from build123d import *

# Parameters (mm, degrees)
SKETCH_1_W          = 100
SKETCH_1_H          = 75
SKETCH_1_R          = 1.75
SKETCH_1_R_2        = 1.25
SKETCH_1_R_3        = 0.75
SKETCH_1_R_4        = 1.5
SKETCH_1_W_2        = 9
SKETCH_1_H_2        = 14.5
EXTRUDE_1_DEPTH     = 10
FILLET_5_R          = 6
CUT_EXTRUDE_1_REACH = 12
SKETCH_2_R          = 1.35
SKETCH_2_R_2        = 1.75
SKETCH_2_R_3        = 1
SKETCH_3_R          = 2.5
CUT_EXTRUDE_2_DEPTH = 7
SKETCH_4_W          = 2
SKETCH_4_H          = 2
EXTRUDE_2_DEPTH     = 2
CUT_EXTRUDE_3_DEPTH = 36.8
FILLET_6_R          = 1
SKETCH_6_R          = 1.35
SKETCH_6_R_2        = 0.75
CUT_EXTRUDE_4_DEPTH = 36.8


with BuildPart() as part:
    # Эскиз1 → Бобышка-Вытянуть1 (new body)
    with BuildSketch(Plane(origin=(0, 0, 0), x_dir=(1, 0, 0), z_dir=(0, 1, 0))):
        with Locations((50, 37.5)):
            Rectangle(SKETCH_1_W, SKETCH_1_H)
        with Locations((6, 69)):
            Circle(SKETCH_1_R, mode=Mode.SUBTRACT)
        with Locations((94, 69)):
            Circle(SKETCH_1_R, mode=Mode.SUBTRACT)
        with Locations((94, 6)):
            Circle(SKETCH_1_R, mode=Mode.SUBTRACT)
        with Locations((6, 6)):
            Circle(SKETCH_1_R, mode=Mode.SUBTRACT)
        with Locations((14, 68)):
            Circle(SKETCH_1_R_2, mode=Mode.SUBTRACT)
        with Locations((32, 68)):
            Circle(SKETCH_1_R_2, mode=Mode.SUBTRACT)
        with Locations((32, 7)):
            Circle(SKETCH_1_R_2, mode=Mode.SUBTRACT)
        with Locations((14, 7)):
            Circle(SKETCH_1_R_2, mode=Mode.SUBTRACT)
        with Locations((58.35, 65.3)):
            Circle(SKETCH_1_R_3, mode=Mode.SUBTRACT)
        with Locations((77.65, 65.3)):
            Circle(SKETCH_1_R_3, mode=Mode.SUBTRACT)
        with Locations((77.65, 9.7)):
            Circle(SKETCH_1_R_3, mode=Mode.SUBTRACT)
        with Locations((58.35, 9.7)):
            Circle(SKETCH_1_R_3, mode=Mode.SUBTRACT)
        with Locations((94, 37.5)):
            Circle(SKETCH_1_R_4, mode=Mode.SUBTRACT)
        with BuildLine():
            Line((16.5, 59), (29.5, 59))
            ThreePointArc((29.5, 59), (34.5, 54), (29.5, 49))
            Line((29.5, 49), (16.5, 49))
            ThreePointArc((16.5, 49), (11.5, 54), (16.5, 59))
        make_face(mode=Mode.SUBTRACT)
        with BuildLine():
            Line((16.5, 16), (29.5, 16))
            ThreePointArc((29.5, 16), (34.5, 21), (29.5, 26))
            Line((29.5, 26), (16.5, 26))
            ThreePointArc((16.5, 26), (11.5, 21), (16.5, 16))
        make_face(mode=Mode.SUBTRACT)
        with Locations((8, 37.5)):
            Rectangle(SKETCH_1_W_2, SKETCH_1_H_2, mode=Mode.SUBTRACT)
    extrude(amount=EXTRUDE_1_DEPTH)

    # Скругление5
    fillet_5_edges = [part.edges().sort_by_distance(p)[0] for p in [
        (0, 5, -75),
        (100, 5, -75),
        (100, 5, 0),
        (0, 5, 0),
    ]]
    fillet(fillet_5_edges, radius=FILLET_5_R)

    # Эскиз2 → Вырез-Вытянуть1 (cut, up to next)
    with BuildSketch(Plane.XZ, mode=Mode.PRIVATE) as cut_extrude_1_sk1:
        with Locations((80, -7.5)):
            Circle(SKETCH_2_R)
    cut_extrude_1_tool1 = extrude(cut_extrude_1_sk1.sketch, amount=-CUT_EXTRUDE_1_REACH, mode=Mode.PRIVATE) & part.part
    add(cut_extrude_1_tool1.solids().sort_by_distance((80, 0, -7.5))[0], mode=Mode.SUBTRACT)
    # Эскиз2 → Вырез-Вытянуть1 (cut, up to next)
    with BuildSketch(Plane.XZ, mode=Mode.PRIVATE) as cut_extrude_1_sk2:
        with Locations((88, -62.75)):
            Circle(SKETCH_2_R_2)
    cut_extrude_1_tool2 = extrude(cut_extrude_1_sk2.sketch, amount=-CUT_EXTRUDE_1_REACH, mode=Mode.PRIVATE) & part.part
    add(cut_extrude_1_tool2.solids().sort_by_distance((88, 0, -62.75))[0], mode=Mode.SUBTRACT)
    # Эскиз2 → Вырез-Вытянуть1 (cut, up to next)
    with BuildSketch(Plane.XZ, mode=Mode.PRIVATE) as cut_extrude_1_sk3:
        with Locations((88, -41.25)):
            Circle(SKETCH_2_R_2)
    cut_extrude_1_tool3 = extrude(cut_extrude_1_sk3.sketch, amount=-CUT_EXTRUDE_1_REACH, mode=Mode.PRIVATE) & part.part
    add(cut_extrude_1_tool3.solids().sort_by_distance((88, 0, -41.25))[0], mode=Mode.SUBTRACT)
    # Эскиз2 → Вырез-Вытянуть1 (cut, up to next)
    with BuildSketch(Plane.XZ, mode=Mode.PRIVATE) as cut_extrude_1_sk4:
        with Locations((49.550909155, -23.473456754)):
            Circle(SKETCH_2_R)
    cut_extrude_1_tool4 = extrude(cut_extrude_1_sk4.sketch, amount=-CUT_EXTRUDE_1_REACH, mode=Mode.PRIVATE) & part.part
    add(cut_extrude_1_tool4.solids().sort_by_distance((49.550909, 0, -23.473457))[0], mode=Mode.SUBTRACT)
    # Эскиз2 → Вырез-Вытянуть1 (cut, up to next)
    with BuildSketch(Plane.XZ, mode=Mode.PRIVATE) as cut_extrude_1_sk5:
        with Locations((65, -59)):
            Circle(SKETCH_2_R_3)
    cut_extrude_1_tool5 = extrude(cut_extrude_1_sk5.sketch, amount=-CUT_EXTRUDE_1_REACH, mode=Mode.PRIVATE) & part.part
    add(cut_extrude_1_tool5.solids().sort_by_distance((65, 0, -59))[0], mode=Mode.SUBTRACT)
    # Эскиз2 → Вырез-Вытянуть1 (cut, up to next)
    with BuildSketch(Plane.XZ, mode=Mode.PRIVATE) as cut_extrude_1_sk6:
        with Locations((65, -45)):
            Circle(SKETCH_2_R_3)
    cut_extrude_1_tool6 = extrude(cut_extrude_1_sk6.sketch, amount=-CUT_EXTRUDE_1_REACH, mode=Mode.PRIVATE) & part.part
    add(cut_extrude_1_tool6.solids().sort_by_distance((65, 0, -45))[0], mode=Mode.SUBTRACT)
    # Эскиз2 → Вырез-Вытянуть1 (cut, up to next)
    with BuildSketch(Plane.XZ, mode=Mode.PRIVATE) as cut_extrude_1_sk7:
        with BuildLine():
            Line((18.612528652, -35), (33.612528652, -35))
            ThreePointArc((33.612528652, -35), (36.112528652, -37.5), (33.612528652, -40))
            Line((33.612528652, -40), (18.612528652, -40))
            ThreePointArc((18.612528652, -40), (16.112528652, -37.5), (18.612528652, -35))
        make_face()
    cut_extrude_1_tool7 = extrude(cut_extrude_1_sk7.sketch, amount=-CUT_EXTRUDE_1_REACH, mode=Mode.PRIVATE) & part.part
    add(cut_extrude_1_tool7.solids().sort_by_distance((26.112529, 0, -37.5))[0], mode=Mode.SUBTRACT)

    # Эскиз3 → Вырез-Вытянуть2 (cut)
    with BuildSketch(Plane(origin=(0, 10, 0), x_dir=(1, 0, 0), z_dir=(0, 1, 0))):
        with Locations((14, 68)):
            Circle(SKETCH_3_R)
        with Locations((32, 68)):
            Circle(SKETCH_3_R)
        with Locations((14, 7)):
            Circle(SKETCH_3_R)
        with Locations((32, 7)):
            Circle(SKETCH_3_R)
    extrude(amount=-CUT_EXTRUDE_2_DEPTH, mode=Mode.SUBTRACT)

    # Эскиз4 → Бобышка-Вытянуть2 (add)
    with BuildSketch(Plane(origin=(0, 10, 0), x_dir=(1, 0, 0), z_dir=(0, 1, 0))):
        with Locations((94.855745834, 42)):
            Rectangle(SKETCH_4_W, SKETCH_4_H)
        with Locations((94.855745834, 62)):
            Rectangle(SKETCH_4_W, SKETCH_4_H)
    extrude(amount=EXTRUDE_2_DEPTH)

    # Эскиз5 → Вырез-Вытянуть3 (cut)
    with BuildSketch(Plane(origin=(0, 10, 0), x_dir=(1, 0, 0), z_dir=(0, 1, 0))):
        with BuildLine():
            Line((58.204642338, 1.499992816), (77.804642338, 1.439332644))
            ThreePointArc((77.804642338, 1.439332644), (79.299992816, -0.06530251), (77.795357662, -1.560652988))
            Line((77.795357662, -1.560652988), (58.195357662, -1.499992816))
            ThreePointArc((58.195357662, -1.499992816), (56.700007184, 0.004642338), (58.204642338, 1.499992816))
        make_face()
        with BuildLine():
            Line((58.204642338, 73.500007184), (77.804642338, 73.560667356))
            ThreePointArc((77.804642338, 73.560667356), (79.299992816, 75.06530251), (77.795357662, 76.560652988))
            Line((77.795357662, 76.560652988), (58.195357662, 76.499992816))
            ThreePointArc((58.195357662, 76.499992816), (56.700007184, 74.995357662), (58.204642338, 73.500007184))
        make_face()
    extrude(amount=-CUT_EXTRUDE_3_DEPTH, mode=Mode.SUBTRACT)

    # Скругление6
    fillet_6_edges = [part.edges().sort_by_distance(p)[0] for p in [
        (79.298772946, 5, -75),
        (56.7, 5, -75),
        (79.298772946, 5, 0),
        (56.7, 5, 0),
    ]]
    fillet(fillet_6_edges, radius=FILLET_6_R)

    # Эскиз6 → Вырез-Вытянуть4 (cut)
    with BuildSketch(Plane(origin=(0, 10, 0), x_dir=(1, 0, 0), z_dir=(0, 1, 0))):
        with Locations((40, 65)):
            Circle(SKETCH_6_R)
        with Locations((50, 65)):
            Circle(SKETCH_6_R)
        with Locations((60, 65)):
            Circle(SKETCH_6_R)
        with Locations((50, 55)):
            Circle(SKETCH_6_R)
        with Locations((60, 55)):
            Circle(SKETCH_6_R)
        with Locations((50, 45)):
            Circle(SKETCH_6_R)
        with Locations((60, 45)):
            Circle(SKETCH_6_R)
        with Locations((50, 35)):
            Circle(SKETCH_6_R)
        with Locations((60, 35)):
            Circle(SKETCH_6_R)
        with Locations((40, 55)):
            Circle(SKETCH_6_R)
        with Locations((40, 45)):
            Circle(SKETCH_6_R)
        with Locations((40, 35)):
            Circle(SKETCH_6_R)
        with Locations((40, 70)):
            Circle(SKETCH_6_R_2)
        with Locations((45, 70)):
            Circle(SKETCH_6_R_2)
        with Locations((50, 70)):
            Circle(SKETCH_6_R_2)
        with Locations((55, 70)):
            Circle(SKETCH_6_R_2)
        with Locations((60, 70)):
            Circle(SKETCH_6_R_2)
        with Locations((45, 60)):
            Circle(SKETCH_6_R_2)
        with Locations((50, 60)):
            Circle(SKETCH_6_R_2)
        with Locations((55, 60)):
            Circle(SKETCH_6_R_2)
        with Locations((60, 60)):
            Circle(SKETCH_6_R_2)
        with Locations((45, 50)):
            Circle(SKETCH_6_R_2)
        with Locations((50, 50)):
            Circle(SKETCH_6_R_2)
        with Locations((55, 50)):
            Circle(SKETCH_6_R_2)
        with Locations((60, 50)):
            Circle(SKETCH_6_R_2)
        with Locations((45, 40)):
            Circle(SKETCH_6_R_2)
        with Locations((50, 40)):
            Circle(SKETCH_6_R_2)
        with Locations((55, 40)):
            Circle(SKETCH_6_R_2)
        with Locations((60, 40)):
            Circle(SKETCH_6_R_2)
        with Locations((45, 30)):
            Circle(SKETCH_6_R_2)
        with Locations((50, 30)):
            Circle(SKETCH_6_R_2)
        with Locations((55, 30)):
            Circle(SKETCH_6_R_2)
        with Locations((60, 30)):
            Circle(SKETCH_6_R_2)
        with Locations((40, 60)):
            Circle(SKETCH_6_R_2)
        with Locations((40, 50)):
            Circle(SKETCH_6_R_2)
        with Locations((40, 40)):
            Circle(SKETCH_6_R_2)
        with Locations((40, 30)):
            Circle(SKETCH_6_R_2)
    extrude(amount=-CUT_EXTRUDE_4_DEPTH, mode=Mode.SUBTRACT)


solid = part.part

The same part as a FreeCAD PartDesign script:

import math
import FreeCAD as App
import Part
import Sketcher

V = App.Vector


def edges_at(feature, points):
    """Names of the edges that pass closest to the given points."""
    edges = feature.Shape.Edges
    near = lambda p: min(range(len(edges)), key=lambda i: edges[i].distToShape(Part.Vertex(*p))[0])
    return sorted({f"Edge{near(p) + 1}" for p in points})

doc = App.newDocument("Part")
body = doc.addObject("PartDesign::Body", "Body")

sketch1 = doc.addObject("Sketcher::SketchObject", "Sketch")
body.addObject(sketch1)
sketch1.AttachmentSupport = (doc.XZ_Plane, [""])
sketch1.MapMode = "FlatFace"
sketch1.addGeometry([
    Part.LineSegment(V(0, -75, 0), V(0, 0, 0)),
    Part.LineSegment(V(0, 0, 0), V(100, 0, 0)),
    Part.LineSegment(V(100, 0, 0), V(100, -75, 0)),
    Part.LineSegment(V(100, -75, 0), V(0, -75, 0)),
    Part.Circle(V(6, -6, 0), V(0, 0, 1), 1.75),
    Part.Circle(V(14, -7, 0), V(0, 0, 1), 1.25),
    Part.Circle(V(32, -7, 0), V(0, 0, 1), 1.25),
    Part.LineSegment(V(29.5, -16, 0), V(16.5, -16, 0)),
    Part.ArcOfCircle(Part.Circle(V(16.5, -21, 0), V(0, 0, 1), 5), math.radians(90), math.radians(270)),
    Part.LineSegment(V(16.5, -26, 0), V(29.5, -26, 0)),
    Part.ArcOfCircle(Part.Circle(V(29.5, -21, 0), V(0, 0, 1), 5), math.radians(-90), math.radians(90)),
    Part.Circle(V(58.35, -9.7, 0), V(0, 0, 1), 0.75),
    Part.Circle(V(77.65, -9.7, 0), V(0, 0, 1), 0.75),
    Part.Circle(V(94, -6, 0), V(0, 0, 1), 1.75),
    Part.LineSegment(V(12.5, -30.25, 0), V(3.5, -30.25, 0)),
    Part.LineSegment(V(3.5, -30.25, 0), V(3.5, -44.75, 0)),
    Part.LineSegment(V(3.5, -44.75, 0), V(12.5, -44.75, 0)),
    Part.LineSegment(V(12.5, -44.75, 0), V(12.5, -30.25, 0)),
    Part.ArcOfCircle(Part.Circle(V(16.5, -54, 0), V(0, 0, 1), 5), math.radians(90), math.radians(270)),
    Part.LineSegment(V(16.5, -59, 0), V(29.5, -59, 0)),
    Part.ArcOfCircle(Part.Circle(V(29.5, -54, 0), V(0, 0, 1), 5), math.radians(-90), math.radians(90)),
    Part.LineSegment(V(29.5, -49, 0), V(16.5, -49, 0)),
    Part.Circle(V(6, -69, 0), V(0, 0, 1), 1.75),
    Part.Circle(V(14, -68, 0), V(0, 0, 1), 1.25),
    Part.Circle(V(32, -68, 0), V(0, 0, 1), 1.25),
    Part.Circle(V(94, -37.5, 0), V(0, 0, 1), 1.5),
    Part.Circle(V(58.35, -65.3, 0), V(0, 0, 1), 0.75),
    Part.Circle(V(77.65, -65.3, 0), V(0, 0, 1), 0.75),
    Part.Circle(V(94, -69, 0), V(0, 0, 1), 1.75),
], False)
sketch1.addConstraint([
    Sketcher.Constraint("Coincident", 0, 2, 1, 1),
    Sketcher.Constraint("Coincident", 1, 2, 2, 1),
    Sketcher.Constraint("Coincident", 2, 2, 3, 1),
    Sketcher.Constraint("Coincident", 3, 2, 0, 1),
    Sketcher.Constraint("Tangent", 7, 2, 8, 1),
    Sketcher.Constraint("Tangent", 8, 2, 9, 1),
    Sketcher.Constraint("Tangent", 9, 2, 10, 1),
    Sketcher.Constraint("Tangent", 10, 2, 7, 1),
    Sketcher.Constraint("Coincident", 14, 2, 15, 1),
    Sketcher.Constraint("Coincident", 15, 2, 16, 1),
    Sketcher.Constraint("Coincident", 16, 2, 17, 1),
    Sketcher.Constraint("Coincident", 17, 2, 14, 1),
    Sketcher.Constraint("Tangent", 18, 2, 19, 1),
    Sketcher.Constraint("Tangent", 19, 2, 20, 1),
    Sketcher.Constraint("Tangent", 20, 2, 21, 1),
    Sketcher.Constraint("Tangent", 21, 2, 18, 1),
    Sketcher.Constraint("Vertical", 0),
    Sketcher.Constraint("Horizontal", 1),
    Sketcher.Constraint("Vertical", 2),
    Sketcher.Constraint("Horizontal", 3),
    Sketcher.Constraint("Horizontal", 7),
    Sketcher.Constraint("Horizontal", 9),
    Sketcher.Constraint("Horizontal", 14),
    Sketcher.Constraint("Vertical", 15),
    Sketcher.Constraint("Horizontal", 16),
    Sketcher.Constraint("Vertical", 17),
    Sketcher.Constraint("Horizontal", 19),
    Sketcher.Constraint("Horizontal", 21),
    Sketcher.Constraint("Coincident", 0, 2, -1, 1),
    Sketcher.Constraint("Equal", 5, 6),
    Sketcher.Constraint("Equal", 11, 12),
    Sketcher.Constraint("Equal", 4, 13),
    Sketcher.Constraint("Equal", 10, 18),
    Sketcher.Constraint("Equal", 13, 22),
    Sketcher.Constraint("Equal", 6, 23),
    Sketcher.Constraint("Equal", 23, 24),
    Sketcher.Constraint("Equal", 12, 26),
    Sketcher.Constraint("Equal", 26, 27),
    Sketcher.Constraint("Equal", 22, 28),
    Sketcher.Constraint("Horizontal", 5, 3, 6, 3),
    Sketcher.Constraint("Horizontal", 11, 3, 12, 3),
    Sketcher.Constraint("Horizontal", 4, 3, 13, 3),
    Sketcher.Constraint("Horizontal", 23, 3, 24, 3),
    Sketcher.Constraint("Horizontal", 26, 3, 27, 3),
    Sketcher.Constraint("Horizontal", 22, 3, 28, 3),
    Sketcher.Constraint("Vertical", 8, 3, 18, 3),
    Sketcher.Constraint("Vertical", 10, 3, 20, 3),
    Sketcher.Constraint("Vertical", 4, 3, 22, 3),
    Sketcher.Constraint("Vertical", 5, 3, 23, 3),
    Sketcher.Constraint("Vertical", 6, 3, 24, 3),
    Sketcher.Constraint("Vertical", 13, 3, 25, 3),
    Sketcher.Constraint("Vertical", 11, 3, 26, 3),
    Sketcher.Constraint("Vertical", 12, 3, 27, 3),
    Sketcher.Constraint("Vertical", 25, 3, 28, 3),
    Sketcher.Constraint("Diameter", 25, 3.0),
    Sketcher.Constraint("Radius", 8, 5.0),
    Sketcher.Constraint("Diameter", 4, 3.5),
    Sketcher.Constraint("Diameter", 5, 2.5),
    Sketcher.Constraint("Diameter", 11, 1.5),
    Sketcher.Constraint("DistanceX", 1, 1, 1, 2, 100.0),
    Sketcher.Constraint("DistanceX", 7, 2, 7, 1, 13.0),
    Sketcher.Constraint("DistanceX", 14, 2, 14, 1, 9.0),
    Sketcher.Constraint("DistanceY", 0, 1, 0, 2, 75.0),
    Sketcher.Constraint("DistanceY", 15, 2, 15, 1, 14.5),
    Sketcher.Constraint("DistanceX", -1, 1, 4, 3, 6.0),
    Sketcher.Constraint("DistanceY", 4, 3, -1, 1, 6.0),
    Sketcher.Constraint("DistanceX", -1, 1, 5, 3, 14.0),
    Sketcher.Constraint("DistanceY", 5, 3, -1, 1, 7.0),
    Sketcher.Constraint("DistanceX", -1, 1, 6, 3, 32.0),
    Sketcher.Constraint("DistanceY", 8, 3, -1, 1, 21.0),
    Sketcher.Constraint("DistanceX", -1, 1, 13, 3, 94.0),
    Sketcher.Constraint("DistanceY", 18, 3, -1, 1, 54.0),
    Sketcher.Constraint("DistanceY", 22, 3, -1, 1, 69.0),
    Sketcher.Constraint("DistanceY", 23, 3, -1, 1, 68.0),
    Sketcher.Constraint("DistanceX", 14, 2, 8, 2, 13.0),
    Sketcher.Constraint("DistanceX", -1, 1, 8, 3, 16.5),
    Sketcher.Constraint("DistanceY", 11, 3, -1, 1, 9.7),
    Sketcher.Constraint("DistanceY", 25, 3, -1, 1, 37.5),
    Sketcher.Constraint("DistanceY", 26, 3, -1, 1, 65.3),
    Sketcher.Constraint("DistanceX", 11, 3, 12, 3, 19.3),
    Sketcher.Constraint("DistanceX", -1, 1, 11, 3, 58.35),
    Sketcher.Constraint("DistanceY", 14, 2, -1, 1, 30.25),
])
pad1 = doc.addObject("PartDesign::Pad", "Pad")
body.addObject(pad1)
pad1.Profile = sketch1
pad1.Length = 10
pad1.Reversed = True
doc.recompute()

fillet = doc.addObject("PartDesign::Fillet", "Fillet")
body.addObject(fillet)
fillet.Base = (pad1, edges_at(pad1, [
    (0, 5, -75),
    (100, 5, -75),
    (100, 5, 0),
    (0, 5, 0),
]))
fillet.Radius = 6

sketch2 = doc.addObject("Sketcher::SketchObject", "Sketch001")
body.addObject(sketch2)
sketch2.AttachmentSupport = (doc.XZ_Plane, [""])
sketch2.MapMode = "FlatFace"
sketch2.addGeometry(Part.Circle(V(80, -7.5, 0), V(0, 0, 1), 1.35), False)
sketch2.addConstraint([
    Sketcher.Constraint("Diameter", 0, 2.7),
    Sketcher.Constraint("DistanceX", -1, 1, 0, 3, 80.0),
    Sketcher.Constraint("DistanceY", 0, 3, -1, 1, 7.5),
])
pocket1 = doc.addObject("PartDesign::Pocket", "Pocket")
body.addObject(pocket1)
pocket1.Profile = sketch2
pocket1.Type = "UpToFirst"

sketch3 = doc.addObject("Sketcher::SketchObject", "Sketch002")
body.addObject(sketch3)
sketch3.AttachmentSupport = (doc.XZ_Plane, [""])
sketch3.MapMode = "FlatFace"
sketch3.addGeometry(Part.Circle(V(88, -62.75, 0), V(0, 0, 1), 1.75), False)
sketch3.addConstraint([
    Sketcher.Constraint("Diameter", 0, 3.5),
    Sketcher.Constraint("DistanceX", -1, 1, 0, 3, 88.0),
    Sketcher.Constraint("DistanceY", 0, 3, -1, 1, 62.75),
])
pocket2 = doc.addObject("PartDesign::Pocket", "Pocket001")
body.addObject(pocket2)
pocket2.Profile = sketch3
pocket2.Type = "UpToFirst"

sketch4 = doc.addObject("Sketcher::SketchObject", "Sketch003")
body.addObject(sketch4)
sketch4.AttachmentSupport = (doc.XZ_Plane, [""])
sketch4.MapMode = "FlatFace"
sketch4.addGeometry(Part.Circle(V(88, -41.25, 0), V(0, 0, 1), 1.75), False)
sketch4.addConstraint([
    Sketcher.Constraint("Diameter", 0, 3.5),
    Sketcher.Constraint("DistanceX", -1, 1, 0, 3, 88.0),
    Sketcher.Constraint("DistanceY", 0, 3, -1, 1, 41.25),
])
pocket3 = doc.addObject("PartDesign::Pocket", "Pocket002")
body.addObject(pocket3)
pocket3.Profile = sketch4
pocket3.Type = "UpToFirst"

sketch5 = doc.addObject("Sketcher::SketchObject", "Sketch004")
body.addObject(sketch5)
sketch5.AttachmentSupport = (doc.XZ_Plane, [""])
sketch5.MapMode = "FlatFace"
sketch5.addGeometry(Part.Circle(V(49.550909, -23.473457, 0), V(0, 0, 1), 1.35), False)
sketch5.addConstraint([
    Sketcher.Constraint("Diameter", 0, 2.7),
    Sketcher.Constraint("DistanceX", -1, 1, 0, 3, 49.550909),
    Sketcher.Constraint("DistanceY", 0, 3, -1, 1, 23.473457),
])
pocket4 = doc.addObject("PartDesign::Pocket", "Pocket003")
body.addObject(pocket4)
pocket4.Profile = sketch5
pocket4.Type = "UpToFirst"

sketch6 = doc.addObject("Sketcher::SketchObject", "Sketch005")
body.addObject(sketch6)
sketch6.AttachmentSupport = (doc.XZ_Plane, [""])
sketch6.MapMode = "FlatFace"
sketch6.addGeometry(Part.Circle(V(65, -59, 0), V(0, 0, 1), 1), False)
sketch6.addConstraint([
    Sketcher.Constraint("Diameter", 0, 2.0),
    Sketcher.Constraint("DistanceX", -1, 1, 0, 3, 65.0),
    Sketcher.Constraint("DistanceY", 0, 3, -1, 1, 59.0),
])
pocket5 = doc.addObject("PartDesign::Pocket", "Pocket004")
body.addObject(pocket5)
pocket5.Profile = sketch6
pocket5.Type = "UpToFirst"

sketch7 = doc.addObject("Sketcher::SketchObject", "Sketch006")
body.addObject(sketch7)
sketch7.AttachmentSupport = (doc.XZ_Plane, [""])
sketch7.MapMode = "FlatFace"
sketch7.addGeometry(Part.Circle(V(65, -45, 0), V(0, 0, 1), 1), False)
sketch7.addConstraint([
    Sketcher.Constraint("Diameter", 0, 2.0),
    Sketcher.Constraint("DistanceX", -1, 1, 0, 3, 65.0),
    Sketcher.Constraint("DistanceY", 0, 3, -1, 1, 45.0),
])
pocket6 = doc.addObject("PartDesign::Pocket", "Pocket005")
body.addObject(pocket6)
pocket6.Profile = sketch7
pocket6.Type = "UpToFirst"

sketch8 = doc.addObject("Sketcher::SketchObject", "Sketch007")
body.addObject(sketch8)
sketch8.AttachmentSupport = (doc.XZ_Plane, [""])
sketch8.MapMode = "FlatFace"
sketch8.addGeometry([
    Part.LineSegment(V(33.612529, -35, 0), V(18.612529, -35, 0)),
    Part.ArcOfCircle(Part.Circle(V(18.612529, -37.5, 0), V(0, 0, 1), 2.5), math.radians(90), math.radians(270)),
    Part.LineSegment(V(18.612529, -40, 0), V(33.612529, -40, 0)),
    Part.ArcOfCircle(Part.Circle(V(33.612529, -37.5, 0), V(0, 0, 1), 2.5), math.radians(-90), math.radians(90)),
], False)
sketch8.addConstraint([
    Sketcher.Constraint("Tangent", 0, 2, 1, 1),
    Sketcher.Constraint("Tangent", 1, 2, 2, 1),
    Sketcher.Constraint("Tangent", 2, 2, 3, 1),
    Sketcher.Constraint("Tangent", 3, 2, 0, 1),
    Sketcher.Constraint("Horizontal", 0),
    Sketcher.Constraint("Horizontal", 2),
    Sketcher.Constraint("Radius", 1, 2.5),
    Sketcher.Constraint("DistanceX", 0, 2, 0, 1, 15.0),
    Sketcher.Constraint("DistanceY", 0, 2, -1, 1, 35.0),
    Sketcher.Constraint("DistanceX", -1, 1, 1, 3, 18.612529),
])
pocket7 = doc.addObject("PartDesign::Pocket", "Pocket006")
body.addObject(pocket7)
pocket7.Profile = sketch8
pocket7.Type = "UpToFirst"

sketch9 = doc.addObject("Sketcher::SketchObject", "Sketch008")
body.addObject(sketch9)
sketch9.AttachmentSupport = (doc.XZ_Plane, [""])
sketch9.MapMode = "FlatFace"
sketch9.AttachmentOffset = App.Placement(V(0, 0, -10), App.Rotation())
sketch9.addGeometry([
    Part.Circle(V(14, -68, 0), V(0, 0, 1), 2.5),
    Part.Circle(V(32, -68, 0), V(0, 0, 1), 2.5),
    Part.Circle(V(14, -7, 0), V(0, 0, 1), 2.5),
    Part.Circle(V(32, -7, 0), V(0, 0, 1), 2.5),
], False)
sketch9.addConstraint([
    Sketcher.Constraint("Equal", 0, 1),
    Sketcher.Constraint("Equal", 1, 2),
    Sketcher.Constraint("Equal", 2, 3),
    Sketcher.Constraint("Horizontal", 0, 3, 1, 3),
    Sketcher.Constraint("Horizontal", 2, 3, 3, 3),
    Sketcher.Constraint("Vertical", 0, 3, 2, 3),
    Sketcher.Constraint("Vertical", 1, 3, 3, 3),
    Sketcher.Constraint("Diameter", 0, 5.0),
    Sketcher.Constraint("DistanceX", -1, 1, 0, 3, 14.0),
    Sketcher.Constraint("DistanceY", 0, 3, -1, 1, 68.0),
    Sketcher.Constraint("DistanceX", -1, 1, 1, 3, 32.0),
    Sketcher.Constraint("DistanceY", 2, 3, -1, 1, 7.0),
])
pocket8 = doc.addObject("PartDesign::Pocket", "Pocket007")
body.addObject(pocket8)
pocket8.Profile = sketch9
pocket8.Length = 7
pocket8.Reversed = True

sketch10 = doc.addObject("Sketcher::SketchObject", "Sketch009")
body.addObject(sketch10)
sketch10.AttachmentSupport = (doc.XZ_Plane, [""])
sketch10.MapMode = "FlatFace"
sketch10.AttachmentOffset = App.Placement(V(0, 0, -10), App.Rotation())
sketch10.addGeometry([
    Part.LineSegment(V(93.855746, -43, 0), V(93.855746, -41, 0)),
    Part.LineSegment(V(93.855746, -41, 0), V(95.855746, -41, 0)),
    Part.LineSegment(V(95.855746, -41, 0), V(95.855746, -43, 0)),
    Part.LineSegment(V(95.855746, -43, 0), V(93.855746, -43, 0)),
    Part.LineSegment(V(93.855746, -63, 0), V(93.855746, -61, 0)),
    Part.LineSegment(V(93.855746, -61, 0), V(95.855746, -61, 0)),
    Part.LineSegment(V(95.855746, -61, 0), V(95.855746, -63, 0)),
    Part.LineSegment(V(95.855746, -63, 0), V(93.855746, -63, 0)),
], False)
sketch10.addConstraint([
    Sketcher.Constraint("Coincident", 0, 2, 1, 1),
    Sketcher.Constraint("Coincident", 1, 2, 2, 1),
    Sketcher.Constraint("Coincident", 2, 2, 3, 1),
    Sketcher.Constraint("Coincident", 3, 2, 0, 1),
    Sketcher.Constraint("Coincident", 4, 2, 5, 1),
    Sketcher.Constraint("Coincident", 5, 2, 6, 1),
    Sketcher.Constraint("Coincident", 6, 2, 7, 1),
    Sketcher.Constraint("Coincident", 7, 2, 4, 1),
    Sketcher.Constraint("Vertical", 0),
    Sketcher.Constraint("Horizontal", 1),
    Sketcher.Constraint("Vertical", 2),
    Sketcher.Constraint("Horizontal", 3),
    Sketcher.Constraint("Vertical", 4),
    Sketcher.Constraint("Horizontal", 5),
    Sketcher.Constraint("Vertical", 6),
    Sketcher.Constraint("Horizontal", 7),
    Sketcher.Constraint("Vertical", 3, 2, 4, 2),
    Sketcher.Constraint("Vertical", 2, 2, 5, 2),
    Sketcher.Constraint("Equal", 7, 0),
    Sketcher.Constraint("Equal", 2, 4),
    Sketcher.Constraint("DistanceX", 1, 1, 1, 2, 2.0),
    Sketcher.Constraint("DistanceY", 0, 2, -1, 1, 41.0),
    Sketcher.Constraint("DistanceY", 4, 2, -1, 1, 61.0),
    Sketcher.Constraint("DistanceX", -1, 1, 0, 2, 93.855746),
])
pad2 = doc.addObject("PartDesign::Pad", "Pad001")
body.addObject(pad2)
pad2.Profile = sketch10
pad2.Length = 2
pad2.Reversed = True

sketch11 = doc.addObject("Sketcher::SketchObject", "Sketch010")
body.addObject(sketch11)
sketch11.AttachmentSupport = (doc.XZ_Plane, [""])
sketch11.MapMode = "FlatFace"
sketch11.AttachmentOffset = App.Placement(V(0, 0, -10), App.Rotation())
sketch11.addGeometry([
    Part.LineSegment(V(77.804642, -1.439333, 0), V(58.204642, -1.499993, 0)),
    Part.ArcOfCircle(Part.Circle(V(58.2, 0, 0), V(0, 0, 1), 1.5), math.radians(90.177325), math.radians(270.177325)),
    Part.LineSegment(V(58.195358, 1.499993, 0), V(77.795358, 1.560653, 0)),
    Part.ArcOfCircle(Part.Circle(V(77.8, 0.06066, 0), V(0, 0, 1), 1.5), math.radians(-89.822675), math.radians(90.177325)),
    Part.LineSegment(V(58.204642, -73.500007, 0), V(77.804642, -73.560667, 0)),
    Part.ArcOfCircle(Part.Circle(V(77.8, -75.06066, 0), V(0, 0, 1), 1.5), math.radians(-90.177325), math.radians(89.822675)),
    Part.LineSegment(V(77.795358, -76.560653, 0), V(58.195358, -76.499993, 0)),
    Part.ArcOfCircle(Part.Circle(V(58.2, -75, 0), V(0, 0, 1), 1.5), math.radians(89.822675), math.radians(269.822675)),
], False)
sketch11.addConstraint([
    Sketcher.Constraint("Tangent", 0, 2, 1, 2),
    Sketcher.Constraint("Tangent", 1, 1, 2, 1),
    Sketcher.Constraint("Tangent", 2, 2, 3, 2),
    Sketcher.Constraint("Tangent", 3, 1, 0, 1),
    Sketcher.Constraint("Tangent", 4, 2, 5, 2),
    Sketcher.Constraint("Tangent", 5, 1, 6, 1),
    Sketcher.Constraint("Tangent", 6, 2, 7, 2),
    Sketcher.Constraint("Tangent", 7, 1, 4, 1),
    Sketcher.Constraint("Equal", 1, 3),
    Sketcher.Constraint("Equal", 3, 5),
    Sketcher.Constraint("Equal", 5, 7),
    Sketcher.Constraint("PointOnObject", 1, 3, -1),
    Sketcher.Constraint("Vertical", 3, 3, 5, 3),
    Sketcher.Constraint("Vertical", 1, 3, 7, 3),
    Sketcher.Constraint("Vertical", 3, 1, 4, 2),
    Sketcher.Constraint("Radius", 1, 1.5),
    Sketcher.Constraint("DistanceY", 7, 3, -1, 1, 75.0),
    Sketcher.Constraint("DistanceX", -1, 1, 1, 3, 58.2),
    Sketcher.Constraint("DistanceX", -1, 1, 3, 3, 77.8),
    Sketcher.Constraint("DistanceY", -1, 1, 3, 3, 0.06066),
])
pocket9 = doc.addObject("PartDesign::Pocket", "Pocket008")
body.addObject(pocket9)
pocket9.Profile = sketch11
pocket9.Length = 36.8
pocket9.Reversed = True
doc.recompute()

fillet2 = doc.addObject("PartDesign::Fillet", "Fillet001")
body.addObject(fillet2)
fillet2.Base = (pocket9, edges_at(pocket9, [
    (79.299, 5, -75),
    (56.7, 5, -75),
    (79.299, 5, 0),
    (56.7, 5, 0),
]))
fillet2.Radius = 1

sketch12 = doc.addObject("Sketcher::SketchObject", "Sketch011")
body.addObject(sketch12)
sketch12.AttachmentSupport = (doc.XZ_Plane, [""])
sketch12.MapMode = "FlatFace"
sketch12.AttachmentOffset = App.Placement(V(0, 0, -10), App.Rotation())
sketch12.addGeometry([
    Part.Circle(V(40, -65, 0), V(0, 0, 1), 1.35),
    Part.Circle(V(50, -65, 0), V(0, 0, 1), 1.35),
    Part.Circle(V(60, -65, 0), V(0, 0, 1), 1.35),
    Part.Circle(V(50, -55, 0), V(0, 0, 1), 1.35),
    Part.Circle(V(60, -55, 0), V(0, 0, 1), 1.35),
    Part.Circle(V(50, -45, 0), V(0, 0, 1), 1.35),
    Part.Circle(V(60, -45, 0), V(0, 0, 1), 1.35),
    Part.Circle(V(50, -35, 0), V(0, 0, 1), 1.35),
    Part.Circle(V(60, -35, 0), V(0, 0, 1), 1.35),
    Part.Circle(V(40, -55, 0), V(0, 0, 1), 1.35),
    Part.Circle(V(40, -45, 0), V(0, 0, 1), 1.35),
    Part.Circle(V(40, -35, 0), V(0, 0, 1), 1.35),
    Part.Circle(V(40, -70, 0), V(0, 0, 1), 0.75),
    Part.Circle(V(45, -70, 0), V(0, 0, 1), 0.75),
    Part.Circle(V(50, -70, 0), V(0, 0, 1), 0.75),
    Part.Circle(V(55, -70, 0), V(0, 0, 1), 0.75),
    Part.Circle(V(60, -70, 0), V(0, 0, 1), 0.75),
    Part.Circle(V(45, -60, 0), V(0, 0, 1), 0.75),
    Part.Circle(V(50, -60, 0), V(0, 0, 1), 0.75),
    Part.Circle(V(55, -60, 0), V(0, 0, 1), 0.75),
    Part.Circle(V(60, -60, 0), V(0, 0, 1), 0.75),
    Part.Circle(V(45, -50, 0), V(0, 0, 1), 0.75),
    Part.Circle(V(50, -50, 0), V(0, 0, 1), 0.75),
    Part.Circle(V(55, -50, 0), V(0, 0, 1), 0.75),
    Part.Circle(V(60, -50, 0), V(0, 0, 1), 0.75),
    Part.Circle(V(45, -40, 0), V(0, 0, 1), 0.75),
    Part.Circle(V(50, -40, 0), V(0, 0, 1), 0.75),
    Part.Circle(V(55, -40, 0), V(0, 0, 1), 0.75),
    Part.Circle(V(60, -40, 0), V(0, 0, 1), 0.75),
    Part.Circle(V(45, -30, 0), V(0, 0, 1), 0.75),
    Part.Circle(V(50, -30, 0), V(0, 0, 1), 0.75),
    Part.Circle(V(55, -30, 0), V(0, 0, 1), 0.75),
    Part.Circle(V(60, -30, 0), V(0, 0, 1), 0.75),
    Part.Circle(V(40, -60, 0), V(0, 0, 1), 0.75),
    Part.Circle(V(40, -50, 0), V(0, 0, 1), 0.75),
    Part.Circle(V(40, -40, 0), V(0, 0, 1), 0.75),
    Part.Circle(V(40, -30, 0), V(0, 0, 1), 0.75),
], False)
sketch12.addConstraint([
    Sketcher.Constraint("Equal", 0, 1),
    Sketcher.Constraint("Equal", 1, 2),
    Sketcher.Constraint("Equal", 2, 3),
    Sketcher.Constraint("Equal", 3, 4),
    Sketcher.Constraint("Equal", 4, 5),
    Sketcher.Constraint("Equal", 5, 6),
    Sketcher.Constraint("Equal", 6, 7),
    Sketcher.Constraint("Equal", 7, 8),
    Sketcher.Constraint("Equal", 8, 9),
    Sketcher.Constraint("Equal", 9, 10),
    Sketcher.Constraint("Equal", 10, 11),
    Sketcher.Constraint("Equal", 12, 13),
    Sketcher.Constraint("Equal", 13, 14),
    Sketcher.Constraint("Equal", 14, 15),
    Sketcher.Constraint("Equal", 15, 16),
    Sketcher.Constraint("Equal", 16, 17),
    Sketcher.Constraint("Equal", 17, 18),
    Sketcher.Constraint("Equal", 18, 19),
    Sketcher.Constraint("Equal", 19, 20),
    Sketcher.Constraint("Equal", 20, 21),
    Sketcher.Constraint("Equal", 21, 22),
    Sketcher.Constraint("Equal", 22, 23),
    Sketcher.Constraint("Equal", 23, 24),
    Sketcher.Constraint("Equal", 24, 25),
    Sketcher.Constraint("Equal", 25, 26),
    Sketcher.Constraint("Equal", 26, 27),
    Sketcher.Constraint("Equal", 27, 28),
    Sketcher.Constraint("Equal", 28, 29),
    Sketcher.Constraint("Equal", 29, 30),
    Sketcher.Constraint("Equal", 30, 31),
    Sketcher.Constraint("Equal", 31, 32),
    Sketcher.Constraint("Equal", 32, 33),
    Sketcher.Constraint("Equal", 33, 34),
    Sketcher.Constraint("Equal", 34, 35),
    Sketcher.Constraint("Equal", 35, 36),
    Sketcher.Constraint("Horizontal", 0, 3, 1, 3),
    Sketcher.Constraint("Horizontal", 1, 3, 2, 3),
    Sketcher.Constraint("Horizontal", 3, 3, 4, 3),
    Sketcher.Constraint("Horizontal", 5, 3, 6, 3),
    Sketcher.Constraint("Horizontal", 7, 3, 8, 3),
    Sketcher.Constraint("Horizontal", 4, 3, 9, 3),
    Sketcher.Constraint("Horizontal", 6, 3, 10, 3),
    Sketcher.Constraint("Horizontal", 8, 3, 11, 3),
    Sketcher.Constraint("Horizontal", 12, 3, 13, 3),
    Sketcher.Constraint("Horizontal", 13, 3, 14, 3),
    Sketcher.Constraint("Horizontal", 14, 3, 15, 3),
    Sketcher.Constraint("Horizontal", 15, 3, 16, 3),
    Sketcher.Constraint("Horizontal", 17, 3, 18, 3),
    Sketcher.Constraint("Horizontal", 18, 3, 19, 3),
    Sketcher.Constraint("Horizontal", 19, 3, 20, 3),
    Sketcher.Constraint("Horizontal", 21, 3, 22, 3),
    Sketcher.Constraint("Horizontal", 22, 3, 23, 3),
    Sketcher.Constraint("Horizontal", 23, 3, 24, 3),
    Sketcher.Constraint("Horizontal", 25, 3, 26, 3),
    Sketcher.Constraint("Horizontal", 26, 3, 27, 3),
    Sketcher.Constraint("Horizontal", 27, 3, 28, 3),
    Sketcher.Constraint("Horizontal", 29, 3, 30, 3),
    Sketcher.Constraint("Horizontal", 30, 3, 31, 3),
    Sketcher.Constraint("Horizontal", 31, 3, 32, 3),
    Sketcher.Constraint("Horizontal", 20, 3, 33, 3),
    Sketcher.Constraint("Horizontal", 24, 3, 34, 3),
    Sketcher.Constraint("Horizontal", 28, 3, 35, 3),
    Sketcher.Constraint("Horizontal", 32, 3, 36, 3),
    Sketcher.Constraint("Vertical", 1, 3, 3, 3),
    Sketcher.Constraint("Vertical", 2, 3, 4, 3),
    Sketcher.Constraint("Vertical", 3, 3, 5, 3),
    Sketcher.Constraint("Vertical", 4, 3, 6, 3),
    Sketcher.Constraint("Vertical", 5, 3, 7, 3),
    Sketcher.Constraint("Vertical", 6, 3, 8, 3),
    Sketcher.Constraint("Vertical", 0, 3, 9, 3),
    Sketcher.Constraint("Vertical", 9, 3, 10, 3),
    Sketcher.Constraint("Vertical", 10, 3, 11, 3),
    Sketcher.Constraint("Vertical", 11, 3, 12, 3),
    Sketcher.Constraint("Vertical", 7, 3, 14, 3),
    Sketcher.Constraint("Vertical", 8, 3, 16, 3),
    Sketcher.Constraint("Vertical", 13, 3, 17, 3),
    Sketcher.Constraint("Vertical", 14, 3, 18, 3),
    Sketcher.Constraint("Vertical", 15, 3, 19, 3),
    Sketcher.Constraint("Vertical", 16, 3, 20, 3),
    Sketcher.Constraint("Vertical", 17, 3, 21, 3),
    Sketcher.Constraint("Vertical", 18, 3, 22, 3),
    Sketcher.Constraint("Vertical", 19, 3, 23, 3),
    Sketcher.Constraint("Vertical", 20, 3, 24, 3),
    Sketcher.Constraint("Vertical", 21, 3, 25, 3),
    Sketcher.Constraint("Vertical", 22, 3, 26, 3),
    Sketcher.Constraint("Vertical", 23, 3, 27, 3),
    Sketcher.Constraint("Vertical", 24, 3, 28, 3),
    Sketcher.Constraint("Vertical", 25, 3, 29, 3),
    Sketcher.Constraint("Vertical", 26, 3, 30, 3),
    Sketcher.Constraint("Vertical", 27, 3, 31, 3),
    Sketcher.Constraint("Vertical", 28, 3, 32, 3),
    Sketcher.Constraint("Vertical", 12, 3, 33, 3),
    Sketcher.Constraint("Vertical", 33, 3, 34, 3),
    Sketcher.Constraint("Vertical", 34, 3, 35, 3),
    Sketcher.Constraint("Vertical", 35, 3, 36, 3),
    Sketcher.Constraint("Diameter", 0, 2.7),
    Sketcher.Constraint("Diameter", 12, 1.5),
    Sketcher.Constraint("DistanceX", -1, 1, 0, 3, 40.0),
    Sketcher.Constraint("DistanceY", 0, 3, -1, 1, 65.0),
    Sketcher.Constraint("DistanceX", -1, 1, 1, 3, 50.0),
    Sketcher.Constraint("DistanceX", -1, 1, 2, 3, 60.0),
    Sketcher.Constraint("DistanceY", 3, 3, -1, 1, 55.0),
    Sketcher.Constraint("DistanceY", 5, 3, -1, 1, 45.0),
    Sketcher.Constraint("DistanceY", 7, 3, -1, 1, 35.0),
    Sketcher.Constraint("DistanceY", 12, 3, -1, 1, 70.0),
    Sketcher.Constraint("DistanceX", -1, 1, 13, 3, 45.0),
    Sketcher.Constraint("DistanceX", -1, 1, 15, 3, 55.0),
    Sketcher.Constraint("DistanceY", 17, 3, -1, 1, 60.0),
    Sketcher.Constraint("DistanceY", 21, 3, -1, 1, 50.0),
    Sketcher.Constraint("DistanceY", 25, 3, -1, 1, 40.0),
    Sketcher.Constraint("DistanceY", 29, 3, -1, 1, 30.0),
])
pocket10 = doc.addObject("PartDesign::Pocket", "Pocket009")
body.addObject(pocket10)
pocket10.Profile = sketch12
pocket10.Length = 36.8
pocket10.Reversed = True

doc.recompute()
